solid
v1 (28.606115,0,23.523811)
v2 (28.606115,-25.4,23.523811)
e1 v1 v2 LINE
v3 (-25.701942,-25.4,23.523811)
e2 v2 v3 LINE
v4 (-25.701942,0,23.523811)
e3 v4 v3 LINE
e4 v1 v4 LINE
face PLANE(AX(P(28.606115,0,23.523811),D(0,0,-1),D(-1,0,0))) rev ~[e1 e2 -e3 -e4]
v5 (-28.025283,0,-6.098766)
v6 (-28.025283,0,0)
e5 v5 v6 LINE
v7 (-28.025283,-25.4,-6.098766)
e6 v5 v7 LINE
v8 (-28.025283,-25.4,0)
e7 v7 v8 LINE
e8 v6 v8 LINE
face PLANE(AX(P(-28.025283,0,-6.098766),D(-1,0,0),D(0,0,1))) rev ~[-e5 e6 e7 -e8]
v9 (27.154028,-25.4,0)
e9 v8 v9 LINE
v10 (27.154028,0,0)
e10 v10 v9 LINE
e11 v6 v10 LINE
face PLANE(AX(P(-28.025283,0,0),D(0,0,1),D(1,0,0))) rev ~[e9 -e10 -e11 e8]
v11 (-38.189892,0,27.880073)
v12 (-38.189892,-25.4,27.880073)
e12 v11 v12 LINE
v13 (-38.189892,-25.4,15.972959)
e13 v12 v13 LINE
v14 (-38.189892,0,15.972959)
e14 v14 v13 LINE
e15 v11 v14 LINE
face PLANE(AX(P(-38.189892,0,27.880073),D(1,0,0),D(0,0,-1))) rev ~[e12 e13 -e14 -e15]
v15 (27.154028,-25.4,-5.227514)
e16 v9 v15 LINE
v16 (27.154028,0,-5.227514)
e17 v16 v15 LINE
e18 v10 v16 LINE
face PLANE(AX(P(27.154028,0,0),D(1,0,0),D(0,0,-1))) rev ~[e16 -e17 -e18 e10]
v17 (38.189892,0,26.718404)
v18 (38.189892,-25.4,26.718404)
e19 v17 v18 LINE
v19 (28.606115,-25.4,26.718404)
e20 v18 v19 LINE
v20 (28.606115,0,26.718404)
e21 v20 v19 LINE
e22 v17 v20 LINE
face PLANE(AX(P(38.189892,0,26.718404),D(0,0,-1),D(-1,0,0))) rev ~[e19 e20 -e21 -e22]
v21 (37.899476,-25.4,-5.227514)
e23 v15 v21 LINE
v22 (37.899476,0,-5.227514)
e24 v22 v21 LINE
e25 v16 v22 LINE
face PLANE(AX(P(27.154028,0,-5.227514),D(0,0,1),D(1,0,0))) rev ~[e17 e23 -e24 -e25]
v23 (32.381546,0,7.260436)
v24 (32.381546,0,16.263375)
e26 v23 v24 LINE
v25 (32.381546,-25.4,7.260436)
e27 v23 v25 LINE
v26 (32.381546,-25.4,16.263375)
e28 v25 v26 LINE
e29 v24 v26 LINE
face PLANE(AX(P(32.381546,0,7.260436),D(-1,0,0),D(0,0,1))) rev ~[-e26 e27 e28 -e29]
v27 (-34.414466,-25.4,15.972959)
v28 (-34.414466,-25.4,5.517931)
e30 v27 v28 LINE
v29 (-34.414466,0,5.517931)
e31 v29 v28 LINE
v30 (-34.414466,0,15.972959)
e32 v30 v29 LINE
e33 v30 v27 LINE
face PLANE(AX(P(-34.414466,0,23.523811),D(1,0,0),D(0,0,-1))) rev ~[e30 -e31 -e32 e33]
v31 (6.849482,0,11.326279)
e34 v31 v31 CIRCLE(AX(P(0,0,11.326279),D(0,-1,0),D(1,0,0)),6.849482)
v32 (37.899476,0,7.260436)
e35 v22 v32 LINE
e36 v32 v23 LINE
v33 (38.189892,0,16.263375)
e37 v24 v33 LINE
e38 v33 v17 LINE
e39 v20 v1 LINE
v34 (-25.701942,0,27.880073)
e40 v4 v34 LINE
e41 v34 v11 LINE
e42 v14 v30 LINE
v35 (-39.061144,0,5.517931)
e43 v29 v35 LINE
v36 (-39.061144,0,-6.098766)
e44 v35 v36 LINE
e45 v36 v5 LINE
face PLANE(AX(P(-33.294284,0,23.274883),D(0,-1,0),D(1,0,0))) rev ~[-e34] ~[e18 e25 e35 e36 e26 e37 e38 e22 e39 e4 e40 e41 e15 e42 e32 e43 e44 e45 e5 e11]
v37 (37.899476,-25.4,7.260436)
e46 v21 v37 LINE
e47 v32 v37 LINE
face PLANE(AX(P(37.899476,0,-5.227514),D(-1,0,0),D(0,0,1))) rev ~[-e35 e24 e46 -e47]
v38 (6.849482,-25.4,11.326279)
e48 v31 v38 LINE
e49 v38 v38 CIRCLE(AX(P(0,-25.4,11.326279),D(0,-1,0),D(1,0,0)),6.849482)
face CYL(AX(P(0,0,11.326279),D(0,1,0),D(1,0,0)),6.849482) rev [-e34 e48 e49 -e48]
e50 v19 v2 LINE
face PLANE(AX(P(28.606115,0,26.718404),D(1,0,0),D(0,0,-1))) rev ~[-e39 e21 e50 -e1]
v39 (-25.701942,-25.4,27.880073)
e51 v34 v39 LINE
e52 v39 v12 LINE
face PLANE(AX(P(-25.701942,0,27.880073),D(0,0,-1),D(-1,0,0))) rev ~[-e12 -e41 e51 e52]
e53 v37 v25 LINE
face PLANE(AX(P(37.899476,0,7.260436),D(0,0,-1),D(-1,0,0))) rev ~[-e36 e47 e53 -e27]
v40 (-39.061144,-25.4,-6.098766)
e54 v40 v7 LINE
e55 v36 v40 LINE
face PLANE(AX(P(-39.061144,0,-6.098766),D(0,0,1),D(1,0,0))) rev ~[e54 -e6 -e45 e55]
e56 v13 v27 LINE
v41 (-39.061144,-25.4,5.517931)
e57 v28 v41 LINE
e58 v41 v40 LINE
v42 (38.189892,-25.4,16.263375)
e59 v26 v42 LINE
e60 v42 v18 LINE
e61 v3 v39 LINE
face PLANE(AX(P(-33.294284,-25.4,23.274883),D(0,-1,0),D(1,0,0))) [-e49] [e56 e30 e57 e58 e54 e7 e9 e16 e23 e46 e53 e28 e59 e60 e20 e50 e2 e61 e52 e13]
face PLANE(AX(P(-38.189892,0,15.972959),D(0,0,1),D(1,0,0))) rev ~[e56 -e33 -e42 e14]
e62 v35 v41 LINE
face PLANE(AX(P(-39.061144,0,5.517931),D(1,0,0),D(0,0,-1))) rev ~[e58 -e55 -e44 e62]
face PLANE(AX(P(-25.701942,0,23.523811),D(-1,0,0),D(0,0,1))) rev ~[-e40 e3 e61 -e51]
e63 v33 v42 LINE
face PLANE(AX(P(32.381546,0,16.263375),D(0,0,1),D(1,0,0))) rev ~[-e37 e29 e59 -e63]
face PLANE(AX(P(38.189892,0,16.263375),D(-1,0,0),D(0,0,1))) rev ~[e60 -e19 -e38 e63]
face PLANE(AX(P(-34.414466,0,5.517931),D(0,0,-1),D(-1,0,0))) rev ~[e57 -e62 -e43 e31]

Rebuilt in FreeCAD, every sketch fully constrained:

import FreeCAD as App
import Part
import Sketcher

V = App.Vector

doc = App.newDocument("Part")
params = doc.addObject("Spreadsheet::Sheet", "Params")
for row, (alias, value) in enumerate([
    ("pad1_length", "1 in"),
    ("pad2_length", "1 in"),
], start=1):
    params.set(f"A{row}", alias)
    params.set(f"B{row}", "=" + value)
    params.setAlias(f"B{row}", alias)

body = doc.addObject("PartDesign::Body", "Body")

sketch1 = body.newObject("Sketcher::SketchObject", "Sketch")
sketch1.AttachmentSupport = (doc.getObject("XZ_Plane"), [""])
sketch1.MapMode = "FlatFace"
sketch1.addGeometry([
    Part.LineSegment(V(-34, 24, 0), V(-34, 6, 0)),
    Part.LineSegment(V(-34, 6, 0), V(-28, 6, 0)),
    Part.LineSegment(V(-28, 6, 0), V(-28, 0, 0)),
    Part.LineSegment(V(-28, 0, 0), V(27, 0, 0)),
    Part.LineSegment(V(27, 0, 0), V(27, 7, 0)),
    Part.LineSegment(V(27, 7, 0), V(32, 7, 0)),
    Part.LineSegment(V(32, 7, 0), V(32, 24, 0)),
    Part.LineSegment(V(32, 24, 0), V(-34, 24, 0)),
    Part.Circle(V(0, 11, 0), V(0, 0, 1), 7),
], False)
sketch1.addConstraint([
    Sketcher.Constraint("Coincident", 0, 2, 1, 1),
    Sketcher.Constraint("Coincident", 1, 2, 2, 1),
    Sketcher.Constraint("Coincident", 2, 2, 3, 1),
    Sketcher.Constraint("Coincident", 3, 2, 4, 1),
    Sketcher.Constraint("Coincident", 4, 2, 5, 1),
    Sketcher.Constraint("Coincident", 5, 2, 6, 1),
    Sketcher.Constraint("Coincident", 6, 2, 7, 1),
    Sketcher.Constraint("Coincident", 7, 2, 0, 1),
    Sketcher.Constraint("Vertical", 0),
    Sketcher.Constraint("Horizontal", 1),
    Sketcher.Constraint("Vertical", 2),
    Sketcher.Constraint("Horizontal", 3),
    Sketcher.Constraint("Vertical", 4),
    Sketcher.Constraint("Horizontal", 5),
    Sketcher.Constraint("Vertical", 6),
    Sketcher.Constraint("Horizontal", 7),
    Sketcher.Constraint("PointOnObject", 8, 3, -2),
    Sketcher.Constraint("PointOnObject", 2, 2, -1),
    Sketcher.Constraint("Diameter", 8, 13.698964),
    Sketcher.Constraint("DistanceX", 3, 1, 3, 2, 55.179311),
    Sketcher.Constraint("DistanceY", 0, 2, 0, 1, 18.00588),
    Sketcher.Constraint("DistanceY", 2, 2, 2, 1, 5.517931),
    Sketcher.Constraint("DistanceX", 1, 1, 1, 2, 6.389184),
    Sketcher.Constraint("DistanceX", 5, 1, 5, 2, 5.227517),
    Sketcher.Constraint("DistanceY", 4, 1, 4, 2, 7.260436),
    Sketcher.Constraint("DistanceY", -1, 1, 8, 3, 11.326279),
    Sketcher.Constraint("DistanceX", -1, 1, 3, 2, 27.154028),
])
pad1 = body.newObject("PartDesign::Pad", "Pad")
pad1.Profile = sketch1
pad1.setExpression("Length", "Params.pad1_length")

sketch2 = body.newObject("Sketcher::SketchObject", "Sketch001")
sketch2.AttachmentSupport = (doc.getObject("XZ_Plane"), [""])
sketch2.MapMode = "FlatFace"
sketch2.addGeometry([
    Part.LineSegment(V(-25.7, 27.9, 0), V(-38.2, 27.9, 0)),
    Part.LineSegment(V(-38.2, 27.9, 0), V(-38.2, 16, 0)),
    Part.LineSegment(V(-38.2, 16, 0), V(-34.4, 16, 0)),
    Part.LineSegment(V(-34.4, 16, 0), V(-34.4, 5.5, 0)),
    Part.LineSegment(V(-34.4, 5.5, 0), V(-39.1, 5.5, 0)),
    Part.LineSegment(V(-39.1, 5.5, 0), V(-39.1, -6.1, 0)),
    Part.LineSegment(V(-39.1, -6.1, 0), V(-28, -6.1, 0)),
    Part.LineSegment(V(-28, -6.1, 0), V(-28, 0, 0)),
    Part.LineSegment(V(-28, 0, 0), V(27.2, 0, 0)),
    Part.LineSegment(V(27.2, 0, 0), V(27.2, -5.2, 0)),
    Part.LineSegment(V(27.2, -5.2, 0), V(37.9, -5.2, 0)),
    Part.LineSegment(V(37.9, -5.2, 0), V(37.9, 7.3, 0)),
    Part.LineSegment(V(37.9, 7.3, 0), V(32.4, 7.3, 0)),
    Part.LineSegment(V(32.4, 7.3, 0), V(32.4, 16.3, 0)),
    Part.LineSegment(V(32.4, 16.3, 0), V(38.2, 16.3, 0)),
    Part.LineSegment(V(38.2, 16.3, 0), V(38.2, 26.7, 0)),
    Part.LineSegment(V(38.2, 26.7, 0), V(28.6, 26.7, 0)),
    Part.LineSegment(V(28.6, 26.7, 0), V(28.6, 23.5, 0)),
    Part.LineSegment(V(28.6, 23.5, 0), V(-25.7, 23.5, 0)),
    Part.LineSegment(V(-25.7, 23.5, 0), V(-25.7, 27.9, 0)),
    Part.Circle(V(0, 11.3, 0), V(0, 0, 1), 6.8),
], False)
sketch2.addConstraint([
    Sketcher.Constraint("Coincident", 0, 2, 1, 1),
    Sketcher.Constraint("Coincident", 1, 2, 2, 1),
    Sketcher.Constraint("Coincident", 2, 2, 3, 1),
    Sketcher.Constraint("Coincident", 3, 2, 4, 1),
    Sketcher.Constraint("Coincident", 4, 2, 5, 1),
    Sketcher.Constraint("Coincident", 5, 2, 6, 1),
    Sketcher.Constraint("Coincident", 6, 2, 7, 1),
    Sketcher.Constraint("Coincident", 7, 2, 8, 1),
    Sketcher.Constraint("Coincident", 8, 2, 9, 1),
    Sketcher.Constraint("Coincident", 9, 2, 10, 1),
    Sketcher.Constraint("Coincident", 10, 2, 11, 1),
    Sketcher.Constraint("Coincident", 11, 2, 12, 1),
    Sketcher.Constraint("Coincident", 12, 2, 13, 1),
    Sketcher.Constraint("Coincident", 13, 2, 14, 1),
    Sketcher.Constraint("Coincident", 14, 2, 15, 1),
    Sketcher.Constraint("Coincident", 15, 2, 16, 1),
    Sketcher.Constraint("Coincident", 16, 2, 17, 1),
    Sketcher.Constraint("Coincident", 17, 2, 18, 1),
    Sketcher.Constraint("Coincident", 18, 2, 19, 1),
    Sketcher.Constraint("Coincident", 19, 2, 0, 1),
    Sketcher.Constraint("Horizontal", 0),
    Sketcher.Constraint("Vertical", 1),
    Sketcher.Constraint("Horizontal", 2),
    Sketcher.Constraint("Vertical", 3),
    Sketcher.Constraint("Horizontal", 4),
    Sketcher.Constraint("Vertical", 5),
    Sketcher.Constraint("Horizontal", 6),
    Sketcher.Constraint("Vertical", 7),
    Sketcher.Constraint("Horizontal", 8),
    Sketcher.Constraint("Vertical", 9),
    Sketcher.Constraint("Horizontal", 10),
    Sketcher.Constraint("Vertical", 11),
    Sketcher.Constraint("Horizontal", 12),
    Sketcher.Constraint("Vertical", 13),
    Sketcher.Constraint("Horizontal", 14),
    Sketcher.Constraint("Vertical", 15),
    Sketcher.Constraint("Horizontal", 16),
    Sketcher.Constraint("Vertical", 17),
    Sketcher.Constraint("Horizontal", 18),
    Sketcher.Constraint("Vertical", 19),
    Sketcher.Constraint("PointOnObject", 20, 3, -2),
    Sketcher.Constraint("PointOnObject", 7, 2, -1),
    Sketcher.Constraint("Equal", 0, 11),
    Sketcher.Constraint("Equal", 3, 15),
    Sketcher.Constraint("Diameter", 20, 13.698964),
    Sketcher.Constraint("DistanceX", 0, 2, 0, 1, 12.48795),
    Sketcher.Constraint("DistanceX", 6, 1, 6, 2, 11.035861),
    Sketcher.Constraint("DistanceX", 8, 1, 8, 2, 55.179311),
    Sketcher.Constraint("DistanceX", 12, 2, 12, 1, 5.51793),
    Sketcher.Constraint("DistanceY", 13, 1, 13, 2, 9.002939),
    Sketcher.Constraint("DistanceY", 15, 1, 15, 2, 10.455029),
    Sketcher.Constraint("DistanceY", 19, 1, 19, 2, 4.356261),
    Sketcher.Constraint("DistanceX", 2, 1, 2, 2, 3.775425),
    Sketcher.Constraint("DistanceX", 4, 2, 4, 1, 4.646678),
    Sketcher.Constraint("DistanceX", 10, 1, 10, 2, 10.745447),
    Sketcher.Constraint("DistanceX", 14, 1, 14, 2, 5.808346),
    Sketcher.Constraint("DistanceX", 16, 2, 16, 1, 9.583777),
    Sketcher.Constraint("DistanceY", 1, 2, 1, 1, 11.907114),
    Sketcher.Constraint("DistanceY", 5, 2, 5, 1, 11.616697),
    Sketcher.Constraint("DistanceY", 7, 1, 7, 2, 6.098766),
    Sketcher.Constraint("DistanceY", 9, 2, 9, 1, 5.227514),
    Sketcher.Constraint("DistanceY", -1, 1, 20, 3, 11.326279),
    Sketcher.Constraint("DistanceX", 0, 2, -1, 1, 38.189892),
])
pad2 = body.newObject("PartDesign::Pad", "Pad001")
pad2.Profile = sketch2
pad2.setExpression("Length", "Params.pad2_length")

doc.recompute()
